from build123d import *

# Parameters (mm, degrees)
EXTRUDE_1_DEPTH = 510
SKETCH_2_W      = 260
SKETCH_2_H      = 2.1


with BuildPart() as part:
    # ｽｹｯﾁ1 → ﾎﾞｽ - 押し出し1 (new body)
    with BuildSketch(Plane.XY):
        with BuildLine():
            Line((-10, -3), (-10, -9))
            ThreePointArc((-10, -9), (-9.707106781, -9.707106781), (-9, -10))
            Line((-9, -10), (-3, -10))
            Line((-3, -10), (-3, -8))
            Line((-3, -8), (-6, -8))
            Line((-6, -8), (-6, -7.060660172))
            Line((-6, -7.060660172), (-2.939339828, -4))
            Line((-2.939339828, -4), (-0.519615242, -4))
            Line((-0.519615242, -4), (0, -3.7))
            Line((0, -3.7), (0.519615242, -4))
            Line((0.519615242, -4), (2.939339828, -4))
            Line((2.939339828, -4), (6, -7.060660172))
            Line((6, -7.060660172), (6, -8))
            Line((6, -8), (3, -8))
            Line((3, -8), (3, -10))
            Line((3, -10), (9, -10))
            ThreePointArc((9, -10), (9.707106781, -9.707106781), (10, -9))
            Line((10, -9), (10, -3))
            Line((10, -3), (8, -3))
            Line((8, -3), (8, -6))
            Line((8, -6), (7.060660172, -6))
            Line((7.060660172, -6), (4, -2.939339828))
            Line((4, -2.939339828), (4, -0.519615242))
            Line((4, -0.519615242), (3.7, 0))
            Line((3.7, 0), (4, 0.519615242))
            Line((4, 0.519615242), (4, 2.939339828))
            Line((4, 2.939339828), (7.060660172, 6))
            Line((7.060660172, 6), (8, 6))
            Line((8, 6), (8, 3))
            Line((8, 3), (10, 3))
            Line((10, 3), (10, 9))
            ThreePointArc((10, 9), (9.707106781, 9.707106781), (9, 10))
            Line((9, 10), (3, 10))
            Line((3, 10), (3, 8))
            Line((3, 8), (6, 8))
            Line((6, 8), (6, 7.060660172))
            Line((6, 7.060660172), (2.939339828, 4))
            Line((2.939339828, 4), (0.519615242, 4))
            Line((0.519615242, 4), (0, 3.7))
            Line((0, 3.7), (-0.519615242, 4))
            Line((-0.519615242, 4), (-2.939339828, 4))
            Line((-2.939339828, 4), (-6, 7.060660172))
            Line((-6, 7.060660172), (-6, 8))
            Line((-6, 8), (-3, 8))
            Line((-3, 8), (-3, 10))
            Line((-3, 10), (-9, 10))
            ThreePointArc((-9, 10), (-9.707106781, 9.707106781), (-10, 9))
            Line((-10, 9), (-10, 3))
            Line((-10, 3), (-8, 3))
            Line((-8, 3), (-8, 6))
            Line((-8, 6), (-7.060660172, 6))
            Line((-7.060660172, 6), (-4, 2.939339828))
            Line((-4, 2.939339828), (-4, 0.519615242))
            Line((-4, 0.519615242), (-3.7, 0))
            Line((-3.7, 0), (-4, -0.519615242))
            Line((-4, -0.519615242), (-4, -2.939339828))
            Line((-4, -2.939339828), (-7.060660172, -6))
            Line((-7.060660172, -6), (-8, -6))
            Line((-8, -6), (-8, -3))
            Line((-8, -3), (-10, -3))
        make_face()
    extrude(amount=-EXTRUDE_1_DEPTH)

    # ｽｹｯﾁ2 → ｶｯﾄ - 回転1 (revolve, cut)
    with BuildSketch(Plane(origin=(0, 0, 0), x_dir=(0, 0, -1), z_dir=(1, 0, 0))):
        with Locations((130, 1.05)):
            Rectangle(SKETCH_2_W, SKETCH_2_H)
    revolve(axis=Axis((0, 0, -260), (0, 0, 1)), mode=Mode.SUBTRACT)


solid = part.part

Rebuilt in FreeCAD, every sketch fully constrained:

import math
import FreeCAD as App
import Part
import Sketcher
from FreeCAD import Vector
Q = App.Units.Quantity

doc = App.newDocument("Part")
params = doc.addObject("Spreadsheet::Sheet", "Params")
for row, (alias, value) in enumerate([
    ("sketch1_radius", "1 mm"),
    ("sketch1_width", "6 mm"),
    ("sketch1_width2", "3 mm"),
    ("sketch1_width3", "2 mm"),
    ("sketch1_length", "0.6 mm"),
    ("pad1_length", "510 mm"),
    ("sketch2_height", "260 mm"),
    ("sketch2_width", "2.1 mm"),
    ("groove_angle", "360 deg"),
], start=1):
    params.set(f"A{row}", alias)
    params.set(f"B{row}", "=" + value)
    params.setAlias(f"B{row}", alias)

body = doc.addObject("PartDesign::Body", "Body")

sketch1 = body.newObject("Sketcher::SketchObject", "Sketch")
sketch1.AttachmentSupport = (doc.getObject("XY_Plane"), [""])
sketch1.MapMode = "FlatFace"
sketch1.addGeometry(Part.LineSegment(Vector(-10, -3, 0), Vector(-10, -9, 0)), False)
sketch1.addGeometry(Part.ArcOfCircle(Part.Circle(Vector(-9, -9, 0), Vector(0, 0, 1), 1), math.radians(-180), math.radians(-90)), False)
sketch1.addGeometry(Part.LineSegment(Vector(-9, -10, 0), Vector(-3, -10, 0)), False)
sketch1.addGeometry(Part.LineSegment(Vector(-3, -10, 0), Vector(-3, -8, 0)), False)
sketch1.addGeometry(Part.LineSegment(Vector(-3, -8, 0), Vector(-6, -8, 0)), False)
sketch1.addGeometry(Part.LineSegment(Vector(-6, -8, 0), Vector(-6, -7.1, 0)), False)
sketch1.addGeometry(Part.LineSegment(Vector(-6, -7.1, 0), Vector(-2.9, -4, 0)), False)
sketch1.addGeometry(Part.LineSegment(Vector(-2.9, -4, 0), Vector(-0.5, -4, 0)), False)
sketch1.addGeometry(Part.LineSegment(Vector(-0.5, -4, 0), Vector(0, -3.7, 0)), False)
sketch1.addGeometry(Part.LineSegment(Vector(0, -3.7, 0), Vector(0.5, -4, 0)), False)
sketch1.addGeometry(Part.LineSegment(Vector(0.5, -4, 0), Vector(2.9, -4, 0)), False)
sketch1.addGeometry(Part.LineSegment(Vector(2.9, -4, 0), Vector(6, -7.1, 0)), False)
sketch1.addGeometry(Part.LineSegment(Vector(6, -7.1, 0), Vector(6, -8, 0)), False)
sketch1.addGeometry(Part.LineSegment(Vector(6, -8, 0), Vector(3, -8, 0)), False)
sketch1.addGeometry(Part.LineSegment(Vector(3, -8, 0), Vector(3, -10, 0)), False)
sketch1.addGeometry(Part.LineSegment(Vector(3, -10, 0), Vector(9, -10, 0)), False)
sketch1.addGeometry(Part.ArcOfCircle(Part.Circle(Vector(9, -9, 0), Vector(0, 0, 1), 1), math.radians(-90), math.radians(0)), False)
sketch1.addGeometry(Part.LineSegment(Vector(10, -9, 0), Vector(10, -3, 0)), False)
sketch1.addGeometry(Part.LineSegment(Vector(10, -3, 0), Vector(8, -3, 0)), False)
sketch1.addGeometry(Part.LineSegment(Vector(8, -3, 0), Vector(8, -6, 0)), False)
sketch1.addGeometry(Part.LineSegment(Vector(8, -6, 0), Vector(7.1, -6, 0)), False)
sketch1.addGeometry(Part.LineSegment(Vector(7.1, -6, 0), Vector(4, -2.9, 0)), False)
sketch1.addGeometry(Part.LineSegment(Vector(4, -2.9, 0), Vector(4, -0.5, 0)), False)
sketch1.addGeometry(Part.LineSegment(Vector(4, -0.5, 0), Vector(3.7, 0, 0)), False)
sketch1.addGeometry(Part.LineSegment(Vector(3.7, 0, 0), Vector(4, 0.5, 0)), False)
sketch1.addGeometry(Part.LineSegment(Vector(4, 0.5, 0), Vector(4, 2.9, 0)), False)
sketch1.addGeometry(Part.LineSegment(Vector(4, 2.9, 0), Vector(7.1, 6, 0)), False)
sketch1.addGeometry(Part.LineSegment(Vector(7.1, 6, 0), Vector(8, 6, 0)), False)
sketch1.addGeometry(Part.LineSegment(Vector(8, 6, 0), Vector(8, 3, 0)), False)
sketch1.addGeometry(Part.LineSegment(Vector(8, 3, 0), Vector(10, 3, 0)), False)
sketch1.addGeometry(Part.LineSegment(Vector(10, 3, 0), Vector(10, 9, 0)), False)
sketch1.addGeometry(Part.ArcOfCircle(Part.Circle(Vector(9, 9, 0), Vector(0, 0, 1), 1), math.radians(0), math.radians(90)), False)
sketch1.addGeometry(Part.LineSegment(Vector(9, 10, 0), Vector(3, 10, 0)), False)
sketch1.addGeometry(Part.LineSegment(Vector(3, 10, 0), Vector(3, 8, 0)), False)
sketch1.addGeometry(Part.LineSegment(Vector(3, 8, 0), Vector(6, 8, 0)), False)
sketch1.addGeometry(Part.LineSegment(Vector(6, 8, 0), Vector(6, 7.1, 0)), False)
sketch1.addGeometry(Part.LineSegment(Vector(6, 7.1, 0), Vector(2.9, 4, 0)), False)
sketch1.addGeometry(Part.LineSegment(Vector(2.9, 4, 0), Vector(0.5, 4, 0)), False)
sketch1.addGeometry(Part.LineSegment(Vector(0.5, 4, 0), Vector(0, 3.7, 0)), False)
sketch1.addGeometry(Part.LineSegment(Vector(0, 3.7, 0), Vector(-0.5, 4, 0)), False)
sketch1.addGeometry(Part.LineSegment(Vector(-0.5, 4, 0), Vector(-2.9, 4, 0)), False)
sketch1.addGeometry(Part.LineSegment(Vector(-2.9, 4, 0), Vector(-6, 7.1, 0)), False)
sketch1.addGeometry(Part.LineSegment(Vector(-6, 7.1, 0), Vector(-6, 8, 0)), False)
sketch1.addGeometry(Part.LineSegment(Vector(-6, 8, 0), Vector(-3, 8, 0)), False)
sketch1.addGeometry(Part.LineSegment(Vector(-3, 8, 0), Vector(-3, 10, 0)), False)
sketch1.addGeometry(Part.LineSegment(Vector(-3, 10, 0), Vector(-9, 10, 0)), False)
sketch1.addGeometry(Part.ArcOfCircle(Part.Circle(Vector(-9, 9, 0), Vector(0, 0, 1), 1), math.radians(90), math.radians(180)), False)
sketch1.addGeometry(Part.LineSegment(Vector(-10, 9, 0), Vector(-10, 3, 0)), False)
sketch1.addGeometry(Part.LineSegment(Vector(-10, 3, 0), Vector(-8, 3, 0)), False)
sketch1.addGeometry(Part.LineSegment(Vector(-8, 3, 0), Vector(-8, 6, 0)), False)
sketch1.addGeometry(Part.LineSegment(Vector(-8, 6, 0), Vector(-7.1, 6, 0)), False)
sketch1.addGeometry(Part.LineSegment(Vector(-7.1, 6, 0), Vector(-4, 2.9, 0)), False)
sketch1.addGeometry(Part.LineSegment(Vector(-4, 2.9, 0), Vector(-4, 0.5, 0)), False)
sketch1.addGeometry(Part.LineSegment(Vector(-4, 0.5, 0), Vector(-3.7, 0, 0)), False)
sketch1.addGeometry(Part.LineSegment(Vector(-3.7, 0, 0), Vector(-4, -0.5, 0)), False)
sketch1.addGeometry(Part.LineSegment(Vector(-4, -0.5, 0), Vector(-4, -2.9, 0)), False)
sketch1.addGeometry(Part.LineSegment(Vector(-4, -2.9, 0), Vector(-7.1, -6, 0)), False)
sketch1.addGeometry(Part.LineSegment(Vector(-7.1, -6, 0), Vector(-8, -6, 0)), False)
sketch1.addGeometry(Part.LineSegment(Vector(-8, -6, 0), Vector(-8, -3, 0)), False)
sketch1.addGeometry(Part.LineSegment(Vector(-8, -3, 0), Vector(-10, -3, 0)), False)
sketch1.addConstraint(Sketcher.Constraint("Tangent", 0, 2, 1, 1))
sketch1.addConstraint(Sketcher.Constraint("Tangent", 1, 2, 2, 1))
sketch1.addConstraint(Sketcher.Constraint("Coincident", 2, 2, 3, 1))
sketch1.addConstraint(Sketcher.Constraint("Coincident", 3, 2, 4, 1))
sketch1.addConstraint(Sketcher.Constraint("Coincident", 4, 2, 5, 1))
sketch1.addConstraint(Sketcher.Constraint("Coincident", 5, 2, 6, 1))
sketch1.addConstraint(Sketcher.Constraint("Coincident", 6, 2, 7, 1))
sketch1.addConstraint(Sketcher.Constraint("Coincident", 7, 2, 8, 1))
sketch1.addConstraint(Sketcher.Constraint("Coincident", 8, 2, 9, 1))
sketch1.addConstraint(Sketcher.Constraint("Coincident", 9, 2, 10, 1))
sketch1.addConstraint(Sketcher.Constraint("Coincident", 10, 2, 11, 1))
sketch1.addConstraint(Sketcher.Constraint("Coincident", 11, 2, 12, 1))
sketch1.addConstraint(Sketcher.Constraint("Coincident", 12, 2, 13, 1))
sketch1.addConstraint(Sketcher.Constraint("Coincident", 13, 2, 14, 1))
sketch1.addConstraint(Sketcher.Constraint("Coincident", 14, 2, 15, 1))
sketch1.addConstraint(Sketcher.Constraint("Tangent", 15, 2, 16, 1))
sketch1.addConstraint(Sketcher.Constraint("Tangent", 16, 2, 17, 1))
sketch1.addConstraint(Sketcher.Constraint("Coincident", 17, 2, 18, 1))
sketch1.addConstraint(Sketcher.Constraint("Coincident", 18, 2, 19, 1))
sketch1.addConstraint(Sketcher.Constraint("Coincident", 19, 2, 20, 1))
sketch1.addConstraint(Sketcher.Constraint("Coincident", 20, 2, 21, 1))
sketch1.addConstraint(Sketcher.Constraint("Coincident", 21, 2, 22, 1))
sketch1.addConstraint(Sketcher.Constraint("Coincident", 22, 2, 23, 1))
sketch1.addConstraint(Sketcher.Constraint("Coincident", 23, 2, 24, 1))
sketch1.addConstraint(Sketcher.Constraint("Coincident", 24, 2, 25, 1))
sketch1.addConstraint(Sketcher.Constraint("Coincident", 25, 2, 26, 1))
sketch1.addConstraint(Sketcher.Constraint("Coincident", 26, 2, 27, 1))
sketch1.addConstraint(Sketcher.Constraint("Coincident", 27, 2, 28, 1))
sketch1.addConstraint(Sketcher.Constraint("Coincident", 28, 2, 29, 1))
sketch1.addConstraint(Sketcher.Constraint("Coincident", 29, 2, 30, 1))
sketch1.addConstraint(Sketcher.Constraint("Tangent", 30, 2, 31, 1))
sketch1.addConstraint(Sketcher.Constraint("Tangent", 31, 2, 32, 1))
sketch1.addConstraint(Sketcher.Constraint("Coincident", 32, 2, 33, 1))
sketch1.addConstraint(Sketcher.Constraint("Coincident", 33, 2, 34, 1))
sketch1.addConstraint(Sketcher.Constraint("Coincident", 34, 2, 35, 1))
sketch1.addConstraint(Sketcher.Constraint("Coincident", 35, 2, 36, 1))
sketch1.addConstraint(Sketcher.Constraint("Coincident", 36, 2, 37, 1))
sketch1.addConstraint(Sketcher.Constraint("Coincident", 37, 2, 38, 1))
sketch1.addConstraint(Sketcher.Constraint("Coincident", 38, 2, 39, 1))
sketch1.addConstraint(Sketcher.Constraint("Coincident", 39, 2, 40, 1))
sketch1.addConstraint(Sketcher.Constraint("Coincident", 40, 2, 41, 1))
sketch1.addConstraint(Sketcher.Constraint("Coincident", 41, 2, 42, 1))
sketch1.addConstraint(Sketcher.Constraint("Coincident", 42, 2, 43, 1))
sketch1.addConstraint(Sketcher.Constraint("Coincident", 43, 2, 44, 1))
sketch1.addConstraint(Sketcher.Constraint("Coincident", 44, 2, 45, 1))
sketch1.addConstraint(Sketcher.Constraint("Tangent", 45, 2, 46, 1))
sketch1.addConstraint(Sketcher.Constraint("Tangent", 46, 2, 47, 1))
sketch1.addConstraint(Sketcher.Constraint("Coincident", 47, 2, 48, 1))
sketch1.addConstraint(Sketcher.Constraint("Coincident", 48, 2, 49, 1))
sketch1.addConstraint(Sketcher.Constraint("Coincident", 49, 2, 50, 1))
sketch1.addConstraint(Sketcher.Constraint("Coincident", 50, 2, 51, 1))
sketch1.addConstraint(Sketcher.Constraint("Coincident", 51, 2, 52, 1))
sketch1.addConstraint(Sketcher.Constraint("Coincident", 52, 2, 53, 1))
sketch1.addConstraint(Sketcher.Constraint("Coincident", 53, 2, 54, 1))
sketch1.addConstraint(Sketcher.Constraint("Coincident", 54, 2, 55, 1))
sketch1.addConstraint(Sketcher.Constraint("Coincident", 55, 2, 56, 1))
sketch1.addConstraint(Sketcher.Constraint("Coincident", 56, 2, 57, 1))
sketch1.addConstraint(Sketcher.Constraint("Coincident", 57, 2, 58, 1))
sketch1.addConstraint(Sketcher.Constraint("Coincident", 58, 2, 59, 1))
sketch1.addConstraint(Sketcher.Constraint("Coincident", 59, 2, 0, 1))
sketch1.addConstraint(Sketcher.Constraint("Vertical", 0))
sketch1.addConstraint(Sketcher.Constraint("Horizontal", 2))
sketch1.addConstraint(Sketcher.Constraint("Vertical", 3))
sketch1.addConstraint(Sketcher.Constraint("Horizontal", 4))
sketch1.addConstraint(Sketcher.Constraint("Vertical", 5))
sketch1.addConstraint(Sketcher.Constraint("Horizontal", 7))
sketch1.addConstraint(Sketcher.Constraint("Horizontal", 10))
sketch1.addConstraint(Sketcher.Constraint("Vertical", 12))
sketch1.addConstraint(Sketcher.Constraint("Horizontal", 13))
sketch1.addConstraint(Sketcher.Constraint("Vertical", 14))
sketch1.addConstraint(Sketcher.Constraint("Horizontal", 15))
sketch1.addConstraint(Sketcher.Constraint("Vertical", 17))
sketch1.addConstraint(Sketcher.Constraint("Horizontal", 18))
sketch1.addConstraint(Sketcher.Constraint("Vertical", 19))
sketch1.addConstraint(Sketcher.Constraint("Horizontal", 20))
sketch1.addConstraint(Sketcher.Constraint("Vertical", 22))
sketch1.addConstraint(Sketcher.Constraint("Vertical", 25))
sketch1.addConstraint(Sketcher.Constraint("Horizontal", 27))
sketch1.addConstraint(Sketcher.Constraint("Vertical", 28))
sketch1.addConstraint(Sketcher.Constraint("Horizontal", 29))
sketch1.addConstraint(Sketcher.Constraint("Vertical", 30))
sketch1.addConstraint(Sketcher.Constraint("Horizontal", 32))
sketch1.addConstraint(Sketcher.Constraint("Vertical", 33))
sketch1.addConstraint(Sketcher.Constraint("Horizontal", 34))
sketch1.addConstraint(Sketcher.Constraint("Vertical", 35))
sketch1.addConstraint(Sketcher.Constraint("Horizontal", 37))
sketch1.addConstraint(Sketcher.Constraint("Horizontal", 40))
sketch1.addConstraint(Sketcher.Constraint("Vertical", 42))
sketch1.addConstraint(Sketcher.Constraint("Horizontal", 43))
sketch1.addConstraint(Sketcher.Constraint("Vertical", 44))
sketch1.addConstraint(Sketcher.Constraint("Horizontal", 45))
sketch1.addConstraint(Sketcher.Constraint("Vertical", 47))
sketch1.addConstraint(Sketcher.Constraint("Horizontal", 48))
sketch1.addConstraint(Sketcher.Constraint("Vertical", 49))
sketch1.addConstraint(Sketcher.Constraint("Horizontal", 50))
sketch1.addConstraint(Sketcher.Constraint("Vertical", 52))
sketch1.addConstraint(Sketcher.Constraint("Vertical", 55))
sketch1.addConstraint(Sketcher.Constraint("Horizontal", 57))
sketch1.addConstraint(Sketcher.Constraint("Vertical", 58))
sketch1.addConstraint(Sketcher.Constraint("Horizontal", 59))
sketch1.addConstraint(Sketcher.Constraint("Equal", 1, 16))
sketch1.addConstraint(Sketcher.Constraint("Equal", 16, 31))
sketch1.addConstraint(Sketcher.Constraint("Equal", 31, 46))
sketch1.addConstraint(Sketcher.Constraint("Symmetric", 1, 3, 31, 3, -1, 1))
sketch1.addConstraint(Sketcher.Constraint("Symmetric", 16, 3, 46, 3, -1, 1))
sketch1.addConstraint(Sketcher.Constraint("Symmetric", 3, 2, 33, 2, -1, 1))
sketch1.addConstraint(Sketcher.Constraint("Symmetric", 5, 2, 35, 2, -1, 1))
sketch1.addConstraint(Sketcher.Constraint("Symmetric", 6, 2, 36, 2, -1, 1))
sketch1.addConstraint(Sketcher.Constraint("Symmetric", 8, 2, 38, 2, -1, 1))
sketch1.addConstraint(Sketcher.Constraint("Symmetric", 9, 2, 39, 2, -1, 1))
sketch1.addConstraint(Sketcher.Constraint("Symmetric", 11, 2, 41, 2, -1, 1))
sketch1.addConstraint(Sketcher.Constraint("Symmetric", 13, 2, 43, 2, -1, 1))
sketch1.addConstraint(Sketcher.Constraint("Symmetric", 18, 2, 48, 2, -1, 1))
sketch1.addConstraint(Sketcher.Constraint("Symmetric", 20, 2, 50, 2, -1, 1))
sketch1.addConstraint(Sketcher.Constraint("Symmetric", 21, 2, 51, 2, -1, 1))
sketch1.addConstraint(Sketcher.Constraint("Symmetric", 23, 2, 53, 2, -1, 1))
sketch1.addConstraint(Sketcher.Constraint("Symmetric", 24, 2, 54, 2, -1, 1))
sketch1.addConstraint(Sketcher.Constraint("Symmetric", 26, 2, 56, 2, -1, 1))
sketch1.addConstraint(Sketcher.Constraint("Symmetric", 28, 2, 58, 2, -1, 1))
sketch1.addConstraint(Sketcher.Constraint("Symmetric", 1, 3, 16, 3, -2))
sketch1.addConstraint(Sketcher.Constraint("Symmetric", 7, 2, 9, 2, -2))
sketch1.addConstraint(Sketcher.Constraint("Symmetric", 5, 2, 11, 2, -2))
sketch1.addConstraint(Sketcher.Constraint("Symmetric", 3, 2, 13, 2, -2))
sketch1.addConstraint(Sketcher.Constraint("Symmetric", 28, 2, 48, 2, -2))
sketch1.addConstraint(Sketcher.Constraint("Symmetric", 26, 2, 50, 2, -2))
sketch1.addConstraint(Sketcher.Constraint("Symmetric", 25, 2, 51, 2, -2))
sketch1.addConstraint(Sketcher.Constraint("PointOnObject", 8, 2, -2))
sketch1.addConstraint(Sketcher.Constraint("PointOnObject", 23, 2, -1))
sketch1.addConstraint(Sketcher.Constraint("Perpendicular", 6, 11))
sketch1.addConstraint(Sketcher.Constraint("Parallel", 11, 21))
sketch1.addConstraint(Sketcher.Constraint("Perpendicular", 8, 23))
sketch1.addConstraint(Sketcher.Constraint("Perpendicular", 9, 24))
sketch1.addConstraint(Sketcher.Constraint("Perpendicular", 21, 26))
sketch1.addConstraint(Sketcher.Constraint("Perpendicular", 23, 38))
sketch1.addConstraint(Sketcher.Constraint("Perpendicular", 36, 41))
sketch1.addConstraint(Sketcher.Constraint("Perpendicular", 38, 53))
sketch1.addConstraint(Sketcher.Constraint("Perpendicular", 51, 56))
sketch1.addConstraint(Sketcher.Constraint("Equal", 45, 0))
sketch1.addConstraint(Sketcher.Constraint("Equal", 59, 3))
sketch1.addConstraint(Sketcher.Constraint("Equal", 57, 5))
sketch1.addConstraint(Sketcher.Constraint("Equal", 43, 19))
sketch1.addConstraint(Sketcher.Constraint("Equal", 40, 22))
sketch1.addConstraint(Sketcher.Constraint("Equal", 11, 21))
sketch1.addConstraint(Sketcher.Constraint("Equal", 9, 23))
sketch1.addConstraint(Sketcher.Constraint("Radius", 1, 1.0))
sketch1.addConstraint(Sketcher.Constraint("DistanceX", 2, 1, 2, 2, 6.0))
sketch1.addConstraint(Sketcher.Constraint("DistanceX", 4, 2, 4, 1, 3.0))
sketch1.addConstraint(Sketcher.Constraint("DistanceX", 18, 2, 18, 1, 2.0))
sketch1.addConstraint(Sketcher.Constraint("Angle", 8, Q("30 deg")))
sketch1.addConstraint(Sketcher.Constraint("DistanceX", 1, 3, -1, 1, 9.0))
sketch1.addConstraint(Sketcher.Constraint("DistanceY", 6, 2, -1, 1, 4.0))
sketch1.addConstraint(Sketcher.Constraint("Distance", 8, 0.6))
sketch1.addConstraint(Sketcher.Constraint("DistanceX", 20, 2, 20, 1, 0.93934))
sketch1.setExpression("Constraints[144]", "Params.sketch1_radius")
sketch1.setExpression("Constraints[145]", "Params.sketch1_width")
sketch1.setExpression("Constraints[146]", "Params.sketch1_width2")
sketch1.setExpression("Constraints[147]", "Params.sketch1_width3")
sketch1.setExpression("Constraints[151]", "Params.sketch1_length")
pad1 = body.newObject("PartDesign::Pad", "Pad")
pad1.Profile = sketch1
pad1.setExpression("Length", "Params.pad1_length")
pad1.Reversed = True

sketch2 = body.newObject("Sketcher::SketchObject", "Sketch001")
sketch2.AttachmentSupport = (doc.getObject("YZ_Plane"), [""])
sketch2.MapMode = "FlatFace"
sketch2.addGeometry(Part.LineSegment(Vector(2.1, 0, 0), Vector(0, 0, 0)), False)
sketch2.addGeometry(Part.LineSegment(Vector(0, 0, 0), Vector(0, -260, 0)), False)
sketch2.addGeometry(Part.LineSegment(Vector(0, -260, 0), Vector(2.1, -260, 0)), False)
sketch2.addGeometry(Part.LineSegment(Vector(2.1, -260, 0), Vector(2.1, 0, 0)), False)
sketch2.addConstraint(Sketcher.Constraint("Coincident", 0, 2, 1, 1))
sketch2.addConstraint(Sketcher.Constraint("Coincident", 1, 2, 2, 1))
sketch2.addConstraint(Sketcher.Constraint("Coincident", 2, 2, 3, 1))
sketch2.addConstraint(Sketcher.Constraint("Coincident", 3, 2, 0, 1))
sketch2.addConstraint(Sketcher.Constraint("Horizontal", 0))
sketch2.addConstraint(Sketcher.Constraint("Vertical", 1))
sketch2.addConstraint(Sketcher.Constraint("Horizontal", 2))
sketch2.addConstraint(Sketcher.Constraint("Vertical", 3))
sketch2.addConstraint(Sketcher.Constraint("Coincident", 0, 2, -1, 1))
sketch2.addConstraint(Sketcher.Constraint("DistanceY", 1, 2, 1, 1, 260.0))
sketch2.addConstraint(Sketcher.Constraint("DistanceX", 0, 2, 0, 1, 2.1))
sketch2.setExpression("Constraints[9]", "Params.sketch2_height")
sketch2.setExpression("Constraints[10]", "Params.sketch2_width")
groove = body.newObject("PartDesign::Groove", "Groove")
groove.Profile = sketch2
groove.ReferenceAxis = (sketch2, ["V_Axis"])
groove.setExpression("Angle", "Params.groove_angle")

doc.recompute()
